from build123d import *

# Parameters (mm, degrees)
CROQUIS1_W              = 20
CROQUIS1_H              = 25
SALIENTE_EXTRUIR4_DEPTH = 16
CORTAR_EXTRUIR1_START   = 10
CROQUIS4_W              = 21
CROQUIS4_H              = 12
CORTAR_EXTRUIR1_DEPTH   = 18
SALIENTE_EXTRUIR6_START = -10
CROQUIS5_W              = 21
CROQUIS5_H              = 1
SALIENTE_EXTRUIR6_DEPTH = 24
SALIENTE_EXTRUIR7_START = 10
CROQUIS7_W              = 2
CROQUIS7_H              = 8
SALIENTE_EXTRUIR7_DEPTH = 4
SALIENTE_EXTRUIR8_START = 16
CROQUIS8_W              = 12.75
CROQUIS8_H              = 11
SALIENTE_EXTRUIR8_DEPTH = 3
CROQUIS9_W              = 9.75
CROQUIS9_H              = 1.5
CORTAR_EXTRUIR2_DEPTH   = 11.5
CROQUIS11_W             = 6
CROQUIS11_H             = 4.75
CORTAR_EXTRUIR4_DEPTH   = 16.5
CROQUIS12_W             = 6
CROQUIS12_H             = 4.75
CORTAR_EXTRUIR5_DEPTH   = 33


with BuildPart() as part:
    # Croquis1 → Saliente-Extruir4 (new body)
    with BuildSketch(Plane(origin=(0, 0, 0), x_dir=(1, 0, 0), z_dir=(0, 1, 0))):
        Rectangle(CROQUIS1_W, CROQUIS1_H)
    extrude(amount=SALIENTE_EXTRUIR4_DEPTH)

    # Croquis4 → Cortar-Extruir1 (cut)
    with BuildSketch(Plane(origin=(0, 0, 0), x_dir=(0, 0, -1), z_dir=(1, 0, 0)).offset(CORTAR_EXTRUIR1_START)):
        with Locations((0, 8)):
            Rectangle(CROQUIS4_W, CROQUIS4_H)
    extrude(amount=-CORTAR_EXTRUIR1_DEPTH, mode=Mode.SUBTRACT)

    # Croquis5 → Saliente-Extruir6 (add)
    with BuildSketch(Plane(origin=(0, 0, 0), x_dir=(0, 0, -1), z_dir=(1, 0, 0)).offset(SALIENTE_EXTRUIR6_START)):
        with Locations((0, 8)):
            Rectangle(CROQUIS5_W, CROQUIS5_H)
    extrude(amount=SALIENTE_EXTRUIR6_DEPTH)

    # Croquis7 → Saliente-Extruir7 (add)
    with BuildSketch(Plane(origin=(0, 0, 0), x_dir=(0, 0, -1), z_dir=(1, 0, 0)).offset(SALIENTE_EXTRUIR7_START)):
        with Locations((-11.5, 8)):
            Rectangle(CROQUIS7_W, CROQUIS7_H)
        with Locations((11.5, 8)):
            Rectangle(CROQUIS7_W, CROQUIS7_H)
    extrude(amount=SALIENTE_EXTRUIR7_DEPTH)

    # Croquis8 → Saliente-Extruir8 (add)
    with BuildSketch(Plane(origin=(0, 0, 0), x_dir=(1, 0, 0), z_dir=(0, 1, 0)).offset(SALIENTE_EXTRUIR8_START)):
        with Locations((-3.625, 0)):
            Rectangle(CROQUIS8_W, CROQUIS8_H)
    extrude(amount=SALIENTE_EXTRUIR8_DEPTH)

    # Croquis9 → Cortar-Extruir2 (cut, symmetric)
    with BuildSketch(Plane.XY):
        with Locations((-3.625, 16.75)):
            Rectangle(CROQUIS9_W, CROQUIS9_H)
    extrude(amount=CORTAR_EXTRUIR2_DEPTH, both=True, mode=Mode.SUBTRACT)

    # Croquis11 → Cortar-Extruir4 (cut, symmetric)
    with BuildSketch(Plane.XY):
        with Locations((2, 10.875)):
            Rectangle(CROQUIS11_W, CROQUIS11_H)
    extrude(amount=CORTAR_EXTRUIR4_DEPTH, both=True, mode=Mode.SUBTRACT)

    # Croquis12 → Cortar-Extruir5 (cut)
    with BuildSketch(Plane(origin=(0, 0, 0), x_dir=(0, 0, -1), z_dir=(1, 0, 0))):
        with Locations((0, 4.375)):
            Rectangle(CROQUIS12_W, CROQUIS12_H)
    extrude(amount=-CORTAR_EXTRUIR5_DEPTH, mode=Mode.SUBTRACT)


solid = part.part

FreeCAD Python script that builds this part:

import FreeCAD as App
import Part
import Sketcher
from FreeCAD import Vector

doc = App.newDocument("Part")
body = doc.addObject("PartDesign::Body", "Body")

sketch1 = body.newObject("Sketcher::SketchObject", "Sketch")
sketch1.AttachmentSupport = (doc.getObject("XZ_Plane"), [""])
sketch1.MapMode = "FlatFace"
sketch1.addGeometry([
    Part.LineSegment(Vector(-10, -12, 0), Vector(-10, 12, 0)),
    Part.LineSegment(Vector(-10, 12, 0), Vector(10, 12, 0)),
    Part.LineSegment(Vector(10, 12, 0), Vector(10, -12, 0)),
    Part.LineSegment(Vector(10, -12, 0), Vector(-10, -12, 0)),
], False)
sketch1.addConstraint([
    Sketcher.Constraint("Coincident", 0, 2, 1, 1),
    Sketcher.Constraint("Coincident", 1, 2, 2, 1),
    Sketcher.Constraint("Coincident", 2, 2, 3, 1),
    Sketcher.Constraint("Coincident", 3, 2, 0, 1),
    Sketcher.Constraint("Vertical", 0),
    Sketcher.Constraint("Horizontal", 1),
    Sketcher.Constraint("Vertical", 2),
    Sketcher.Constraint("Horizontal", 3),
    Sketcher.Constraint("Symmetric", 0, 2, 2, 2, -1, 1),
    Sketcher.Constraint("DistanceX", 1, 1, 1, 2, 20.0),
    Sketcher.Constraint("DistanceY", 0, 1, 0, 2, 25.0),
])
pad1 = body.newObject("PartDesign::Pad", "Pad")
pad1.Profile = sketch1
pad1.Length = 16
pad1.Reversed = True

sketch2 = body.newObject("Sketcher::SketchObject", "Sketch001")
sketch2.AttachmentSupport = (doc.getObject("YZ_Plane"), [""])
sketch2.MapMode = "FlatFace"
sketch2.AttachmentOffset = App.Placement(Vector(0, 0, 10), App.Rotation())
sketch2.addGeometry([
    Part.LineSegment(Vector(14, 10, 0), Vector(2, 10, 0)),
    Part.LineSegment(Vector(2, 10, 0), Vector(2, -10, 0)),
    Part.LineSegment(Vector(2, -10, 0), Vector(14, -10, 0)),
    Part.LineSegment(Vector(14, -10, 0), Vector(14, 10, 0)),
], False)
sketch2.addConstraint([
    Sketcher.Constraint("Coincident", 0, 2, 1, 1),
    Sketcher.Constraint("Coincident", 1, 2, 2, 1),
    Sketcher.Constraint("Coincident", 2, 2, 3, 1),
    Sketcher.Constraint("Coincident", 3, 2, 0, 1),
    Sketcher.Constraint("Horizontal", 0),
    Sketcher.Constraint("Vertical", 1),
    Sketcher.Constraint("Horizontal", 2),
    Sketcher.Constraint("Vertical", 3),
    Sketcher.Constraint("DistanceX", 0, 2, 0, 1, 12.0),
    Sketcher.Constraint("DistanceY", 1, 2, 1, 1, 21.0),
    Sketcher.Constraint("DistanceX", -1, 1, 0, 2, 2.0),
    Sketcher.Constraint("DistanceY", -1, 1, 0, 2, 10.5),
])
pocket1 = body.newObject("PartDesign::Pocket", "Pocket")
pocket1.Profile = sketch2
pocket1.Length = 18

sketch3 = body.newObject("Sketcher::SketchObject", "Sketch002")
sketch3.AttachmentSupport = (doc.getObject("YZ_Plane"), [""])
sketch3.MapMode = "FlatFace"
sketch3.AttachmentOffset = App.Placement(Vector(0, 0, -10), App.Rotation())
sketch3.addGeometry([
    Part.LineSegment(Vector(8.5, 10.5, 0), Vector(7.5, 10.5, 0)),
    Part.LineSegment(Vector(7.5, 10.5, 0), Vector(7.5, -10.5, 0)),
    Part.LineSegment(Vector(7.5, -10.5, 0), Vector(8.5, -10.5, 0)),
    Part.LineSegment(Vector(8.5, -10.5, 0), Vector(8.5, 10.5, 0)),
], False)
sketch3.addConstraint([
    Sketcher.Constraint("Coincident", 0, 2, 1, 1),
    Sketcher.Constraint("Coincident", 1, 2, 2, 1),
    Sketcher.Constraint("Coincident", 2, 2, 3, 1),
    Sketcher.Constraint("Coincident", 3, 2, 0, 1),
    Sketcher.Constraint("Horizontal", 0),
    Sketcher.Constraint("Vertical", 1),
    Sketcher.Constraint("Horizontal", 2),
    Sketcher.Constraint("Vertical", 3),
    Sketcher.Constraint("DistanceX", 0, 2, 0, 1, 1.0),
    Sketcher.Constraint("DistanceY", 1, 2, 1, 1, 21.0),
    Sketcher.Constraint("DistanceX", -1, 1, 0, 2, 7.5),
    Sketcher.Constraint("DistanceY", -1, 1, 0, 2, 10.5),
])
pad2 = body.newObject("PartDesign::Pad", "Pad001")
pad2.Profile = sketch3
pad2.Length = 24

sketch4 = body.newObject("Sketcher::SketchObject", "Sketch003")
sketch4.AttachmentSupport = (doc.getObject("YZ_Plane"), [""])
sketch4.MapMode = "FlatFace"
sketch4.AttachmentOffset = App.Placement(Vector(0, 0, 10), App.Rotation())
sketch4.addGeometry([
    Part.LineSegment(Vector(12, 12.5, 0), Vector(4, 12.5, 0)),
    Part.LineSegment(Vector(4, 12.5, 0), Vector(4, 10.5, 0)),
    Part.LineSegment(Vector(4, 10.5, 0), Vector(12, 10.5, 0)),
    Part.LineSegment(Vector(12, 10.5, 0), Vector(12, 12.5, 0)),
    Part.LineSegment(Vector(12, -10.5, 0), Vector(4, -10.5, 0)),
    Part.LineSegment(Vector(4, -10.5, 0), Vector(4, -12.5, 0)),
    Part.LineSegment(Vector(4, -12.5, 0), Vector(12, -12.5, 0)),
    Part.LineSegment(Vector(12, -12.5, 0), Vector(12, -10.5, 0)),
], False)
sketch4.addConstraint([
    Sketcher.Constraint("Coincident", 0, 2, 1, 1),
    Sketcher.Constraint("Coincident", 1, 2, 2, 1),
    Sketcher.Constraint("Coincident", 2, 2, 3, 1),
    Sketcher.Constraint("Coincident", 3, 2, 0, 1),
    Sketcher.Constraint("Coincident", 4, 2, 5, 1),
    Sketcher.Constraint("Coincident", 5, 2, 6, 1),
    Sketcher.Constraint("Coincident", 6, 2, 7, 1),
    Sketcher.Constraint("Coincident", 7, 2, 4, 1),
    Sketcher.Constraint("Horizontal", 0),
    Sketcher.Constraint("Vertical", 1),
    Sketcher.Constraint("Horizontal", 2),
    Sketcher.Constraint("Vertical", 3),
    Sketcher.Constraint("Horizontal", 4),
    Sketcher.Constraint("Vertical", 5),
    Sketcher.Constraint("Horizontal", 6),
    Sketcher.Constraint("Vertical", 7),
    Sketcher.Constraint("Symmetric", 1, 2, 4, 2, -1),
    Sketcher.Constraint("Symmetric", 3, 2, 6, 2, -1),
    Sketcher.Constraint("DistanceX", 0, 2, 0, 1, 8.0),
    Sketcher.Constraint("DistanceY", 1, 2, 1, 1, 2.0),
    Sketcher.Constraint("DistanceX", -1, 1, 0, 2, 4.0),
    Sketcher.Constraint("DistanceY", 4, 2, 1, 2, 21.0),
])
pad3 = body.newObject("PartDesign::Pad", "Pad002")
pad3.Profile = sketch4
pad3.Length = 4

sketch5 = body.newObject("Sketcher::SketchObject", "Sketch004")
sketch5.AttachmentSupport = (doc.getObject("XZ_Plane"), [""])
sketch5.MapMode = "FlatFace"
sketch5.AttachmentOffset = App.Placement(Vector(0, 0, -16), App.Rotation())
sketch5.addGeometry([
    Part.LineSegment(Vector(-10, -6, 0), Vector(-10, 6, 0)),
    Part.LineSegment(Vector(-10, 6, 0), Vector(3, 6, 0)),
    Part.LineSegment(Vector(3, 6, 0), Vector(3, -6, 0)),
    Part.LineSegment(Vector(3, -6, 0), Vector(-10, -6, 0)),
], False)
sketch5.addConstraint([
    Sketcher.Constraint("Coincident", 0, 2, 1, 1),
    Sketcher.Constraint("Coincident", 1, 2, 2, 1),
    Sketcher.Constraint("Coincident", 2, 2, 3, 1),
    Sketcher.Constraint("Coincident", 3, 2, 0, 1),
    Sketcher.Constraint("Vertical", 0),
    Sketcher.Constraint("Horizontal", 1),
    Sketcher.Constraint("Vertical", 2),
    Sketcher.Constraint("Horizontal", 3),
    Sketcher.Constraint("DistanceY", 0, 1, 0, 2, 11.0),
    Sketcher.Constraint("DistanceX", 0, 2, -1, 1, 10.0),
    Sketcher.Constraint("DistanceX", 1, 1, 1, 2, 12.75),
    Sketcher.Constraint("DistanceY", -1, 1, 0, 2, 5.5),
])
pad4 = body.newObject("PartDesign::Pad", "Pad003")
pad4.Profile = sketch5
pad4.Length = 3
pad4.Reversed = True

sketch6 = body.newObject("Sketcher::SketchObject", "Sketch005")
sketch6.AttachmentSupport = (doc.getObject("XY_Plane"), [""])
sketch6.MapMode = "FlatFace"
sketch6.addGeometry([
    Part.LineSegment(Vector(-8.5, 17.5, 0), Vector(-8.5, 16, 0)),
    Part.LineSegment(Vector(-8.5, 16, 0), Vector(1.2, 16, 0)),
    Part.LineSegment(Vector(1.2, 16, 0), Vector(1.2, 17.5, 0)),
    Part.LineSegment(Vector(1.2, 17.5, 0), Vector(-8.5, 17.5, 0)),
], False)
sketch6.addConstraint([
    Sketcher.Constraint("Coincident", 0, 2, 1, 1),
    Sketcher.Constraint("Coincident", 1, 2, 2, 1),
    Sketcher.Constraint("Coincident", 2, 2, 3, 1),
    Sketcher.Constraint("Coincident", 3, 2, 0, 1),
    Sketcher.Constraint("Vertical", 0),
    Sketcher.Constraint("Horizontal", 1),
    Sketcher.Constraint("Vertical", 2),
    Sketcher.Constraint("Horizontal", 3),
    Sketcher.Constraint("DistanceY", 0, 2, 0, 1, 1.5),
    Sketcher.Constraint("DistanceY", -1, 1, 0, 2, 16.0),
    Sketcher.Constraint("DistanceX", 1, 1, 1, 2, 9.75),
    Sketcher.Constraint("DistanceX", 0, 2, -1, 1, 8.5),
])
pocket2 = body.newObject("PartDesign::Pocket", "Pocket001")
pocket2.Profile = sketch6
pocket2.Length = 23
pocket2.Midplane = True

sketch7 = body.newObject("Sketcher::SketchObject", "Sketch006")
sketch7.AttachmentSupport = (doc.getObject("XY_Plane"), [""])
sketch7.MapMode = "FlatFace"
sketch7.addGeometry([
    Part.LineSegment(Vector(-1, 13.2, 0), Vector(-1, 8.5, 0)),
    Part.LineSegment(Vector(-1, 8.5, 0), Vector(5, 8.5, 0)),
    Part.LineSegment(Vector(5, 8.5, 0), Vector(5, 13.2, 0)),
    Part.LineSegment(Vector(5, 13.2, 0), Vector(-1, 13.2, 0)),
], False)
sketch7.addConstraint([
    Sketcher.Constraint("Coincident", 0, 2, 1, 1),
    Sketcher.Constraint("Coincident", 1, 2, 2, 1),
    Sketcher.Constraint("Coincident", 2, 2, 3, 1),
    Sketcher.Constraint("Coincident", 3, 2, 0, 1),
    Sketcher.Constraint("Vertical", 0),
    Sketcher.Constraint("Horizontal", 1),
    Sketcher.Constraint("Vertical", 2),
    Sketcher.Constraint("Horizontal", 3),
    Sketcher.Constraint("DistanceX", 1, 1, 1, 2, 6.0),
    Sketcher.Constraint("DistanceX", 0, 2, -1, 1, 1.0),
    Sketcher.Constraint("DistanceY", 0, 2, 0, 1, 4.75),
    Sketcher.Constraint("DistanceY", -1, 1, 0, 2, 8.5),
])
pocket3 = body.newObject("PartDesign::Pocket", "Pocket002")
pocket3.Profile = sketch7
pocket3.Length = 33
pocket3.Midplane = True

sketch8 = body.newObject("Sketcher::SketchObject", "Sketch007")
sketch8.AttachmentSupport = (doc.getObject("YZ_Plane"), [""])
sketch8.MapMode = "FlatFace"
sketch8.addGeometry([
    Part.LineSegment(Vector(6.8, 3, 0), Vector(2, 3, 0)),
    Part.LineSegment(Vector(2, 3, 0), Vector(2, -3, 0)),
    Part.LineSegment(Vector(2, -3, 0), Vector(6.8, -3, 0)),
    Part.LineSegment(Vector(6.8, -3, 0), Vector(6.8, 3, 0)),
], False)
sketch8.addConstraint([
    Sketcher.Constraint("Coincident", 0, 2, 1, 1),
    Sketcher.Constraint("Coincident", 1, 2, 2, 1),
    Sketcher.Constraint("Coincident", 2, 2, 3, 1),
    Sketcher.Constraint("Coincident", 3, 2, 0, 1),
    Sketcher.Constraint("Horizontal", 0),
    Sketcher.Constraint("Vertical", 1),
    Sketcher.Constraint("Horizontal", 2),
    Sketcher.Constraint("Vertical", 3),
    Sketcher.Constraint("DistanceY", 1, 2, 1, 1, 6.0),
    Sketcher.Constraint("DistanceX", -1, 1, 0, 2, 2.0),
    Sketcher.Constraint("DistanceY", -1, 1, 0, 2, 3.0),
    Sketcher.Constraint("DistanceX", 0, 2, 0, 1, 4.75),
])
pocket4 = body.newObject("PartDesign::Pocket", "Pocket003")
pocket4.Profile = sketch8
pocket4.Length = 33

doc.recompute()
